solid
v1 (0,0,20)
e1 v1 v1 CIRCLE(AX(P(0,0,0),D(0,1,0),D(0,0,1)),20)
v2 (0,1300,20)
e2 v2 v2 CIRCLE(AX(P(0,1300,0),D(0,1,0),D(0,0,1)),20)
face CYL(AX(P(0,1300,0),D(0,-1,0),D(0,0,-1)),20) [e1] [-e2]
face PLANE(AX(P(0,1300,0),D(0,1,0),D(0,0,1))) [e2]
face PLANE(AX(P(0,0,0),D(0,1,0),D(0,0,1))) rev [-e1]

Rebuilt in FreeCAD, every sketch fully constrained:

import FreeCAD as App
import Part
import Sketcher
from FreeCAD import Vector

doc = App.newDocument("Part")
params = doc.addObject("Spreadsheet::Sheet", "Params")
for row, (alias, value) in enumerate([
    ("sketch1_diameter", "40 mm"),
    ("pad1_length", "1300 mm"),
], start=1):
    params.set(f"A{row}", alias)
    params.set(f"B{row}", "=" + value)
    params.setAlias(f"B{row}", alias)

body = doc.addObject("PartDesign::Body", "Body")

# Sketch on XZ plane
sketch1 = body.newObject("Sketcher::SketchObject", "Sketch")
sketch1.AttachmentSupport = (doc.getObject("XZ_Plane"), [""])
sketch1.MapMode = "FlatFace"
sketch1.addGeometry(Part.Circle(Vector(0, 0, 0), Vector(0, 0, 1), 20), False)
sketch1.addConstraint([
    Sketcher.Constraint("Coincident", 0, 3, -1, 1),
    Sketcher.Constraint("Diameter", 0, 40.0),
])
sketch1.setExpression("Constraints[1]", "Params.sketch1_diameter")
pad1 = body.newObject("PartDesign::Pad", "Pad")
pad1.Profile = sketch1
pad1.setExpression("Length", "Params.pad1_length")
pad1.Reversed = True

doc.recompute()
